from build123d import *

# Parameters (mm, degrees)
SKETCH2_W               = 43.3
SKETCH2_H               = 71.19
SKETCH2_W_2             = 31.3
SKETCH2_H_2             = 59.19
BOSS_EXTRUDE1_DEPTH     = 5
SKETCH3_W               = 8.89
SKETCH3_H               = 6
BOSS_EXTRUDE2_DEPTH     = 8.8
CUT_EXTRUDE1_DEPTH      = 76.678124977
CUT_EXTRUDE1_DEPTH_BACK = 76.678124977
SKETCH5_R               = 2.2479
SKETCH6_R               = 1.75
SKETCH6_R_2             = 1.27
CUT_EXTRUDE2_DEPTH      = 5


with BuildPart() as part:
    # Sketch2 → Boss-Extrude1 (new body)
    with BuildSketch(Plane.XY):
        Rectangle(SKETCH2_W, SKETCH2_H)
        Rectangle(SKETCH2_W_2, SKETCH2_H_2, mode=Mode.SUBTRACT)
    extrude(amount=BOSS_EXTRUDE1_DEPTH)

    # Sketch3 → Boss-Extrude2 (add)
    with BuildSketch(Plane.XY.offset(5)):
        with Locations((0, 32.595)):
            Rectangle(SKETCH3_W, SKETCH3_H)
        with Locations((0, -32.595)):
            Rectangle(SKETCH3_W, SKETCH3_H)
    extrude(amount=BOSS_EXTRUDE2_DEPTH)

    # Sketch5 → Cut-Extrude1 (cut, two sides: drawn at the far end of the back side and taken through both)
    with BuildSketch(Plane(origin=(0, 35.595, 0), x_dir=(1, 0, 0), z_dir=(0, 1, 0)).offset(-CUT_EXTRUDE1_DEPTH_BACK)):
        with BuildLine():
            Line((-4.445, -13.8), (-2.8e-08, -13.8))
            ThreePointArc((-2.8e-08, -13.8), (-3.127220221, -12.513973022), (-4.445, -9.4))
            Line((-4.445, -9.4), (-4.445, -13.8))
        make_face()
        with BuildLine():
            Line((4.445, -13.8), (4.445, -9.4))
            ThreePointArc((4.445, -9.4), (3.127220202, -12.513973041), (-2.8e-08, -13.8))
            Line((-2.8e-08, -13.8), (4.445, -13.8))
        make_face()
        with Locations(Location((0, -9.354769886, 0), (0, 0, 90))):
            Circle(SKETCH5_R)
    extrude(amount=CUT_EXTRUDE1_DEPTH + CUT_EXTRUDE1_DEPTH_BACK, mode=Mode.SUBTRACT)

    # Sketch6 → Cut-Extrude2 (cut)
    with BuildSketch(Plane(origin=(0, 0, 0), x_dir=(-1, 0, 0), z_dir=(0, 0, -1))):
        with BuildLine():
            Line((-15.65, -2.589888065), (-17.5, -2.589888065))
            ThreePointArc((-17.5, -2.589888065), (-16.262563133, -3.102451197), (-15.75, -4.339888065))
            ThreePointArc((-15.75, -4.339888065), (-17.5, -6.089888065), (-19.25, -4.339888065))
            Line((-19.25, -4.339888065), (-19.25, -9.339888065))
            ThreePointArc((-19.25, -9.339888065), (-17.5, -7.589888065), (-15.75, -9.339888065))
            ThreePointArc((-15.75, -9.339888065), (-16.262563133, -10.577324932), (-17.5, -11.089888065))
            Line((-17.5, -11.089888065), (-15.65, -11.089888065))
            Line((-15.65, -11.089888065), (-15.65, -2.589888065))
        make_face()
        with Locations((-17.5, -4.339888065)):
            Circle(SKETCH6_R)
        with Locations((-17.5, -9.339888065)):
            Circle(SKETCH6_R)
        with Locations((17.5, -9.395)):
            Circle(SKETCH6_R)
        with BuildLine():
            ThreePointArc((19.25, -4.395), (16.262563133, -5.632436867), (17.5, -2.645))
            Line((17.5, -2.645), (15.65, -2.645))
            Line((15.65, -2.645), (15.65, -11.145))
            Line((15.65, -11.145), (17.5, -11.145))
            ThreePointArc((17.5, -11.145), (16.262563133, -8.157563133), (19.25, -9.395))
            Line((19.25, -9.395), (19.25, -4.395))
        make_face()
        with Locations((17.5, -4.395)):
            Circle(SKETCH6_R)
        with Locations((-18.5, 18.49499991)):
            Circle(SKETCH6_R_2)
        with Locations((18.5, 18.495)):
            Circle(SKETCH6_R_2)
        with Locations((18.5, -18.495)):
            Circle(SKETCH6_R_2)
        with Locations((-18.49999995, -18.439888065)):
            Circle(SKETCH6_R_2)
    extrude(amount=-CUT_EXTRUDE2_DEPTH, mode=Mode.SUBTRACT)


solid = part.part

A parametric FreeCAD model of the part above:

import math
import FreeCAD as App
import Part
import Sketcher
Q = App.Units.Quantity

doc = App.newDocument("Part")
body = doc.addObject("PartDesign::Body", "Body")

sketch1 = body.newObject("Sketcher::SketchObject", "Sketch")
sketch1.AttachmentSupport = (doc.getObject("XY_Plane"), [""])
sketch1.MapMode = "FlatFace"
sketch1.addGeometry(Part.LineSegment(App.Vector(-22, 36, 0), App.Vector(-22, -36, 0)), False)
sketch1.addGeometry(Part.LineSegment(App.Vector(-22, -36, 0), App.Vector(22, -36, 0)), False)
sketch1.addGeometry(Part.LineSegment(App.Vector(22, -36, 0), App.Vector(22, 36, 0)), False)
sketch1.addGeometry(Part.LineSegment(App.Vector(22, 36, 0), App.Vector(-22, 36, 0)), False)
sketch1.addGeometry(Part.LineSegment(App.Vector(16, -30, 0), App.Vector(-16, -30, 0)), False)
sketch1.addGeometry(Part.LineSegment(App.Vector(-16, -30, 0), App.Vector(-16, 30, 0)), False)
sketch1.addGeometry(Part.LineSegment(App.Vector(-16, 30, 0), App.Vector(16, 30, 0)), False)
sketch1.addGeometry(Part.LineSegment(App.Vector(16, 30, 0), App.Vector(16, -30, 0)), False)
sketch1.addConstraint(Sketcher.Constraint("Coincident", 0, 2, 1, 1))
sketch1.addConstraint(Sketcher.Constraint("Coincident", 1, 2, 2, 1))
sketch1.addConstraint(Sketcher.Constraint("Coincident", 2, 2, 3, 1))
sketch1.addConstraint(Sketcher.Constraint("Coincident", 3, 2, 0, 1))
sketch1.addConstraint(Sketcher.Constraint("Coincident", 4, 2, 5, 1))
sketch1.addConstraint(Sketcher.Constraint("Coincident", 5, 2, 6, 1))
sketch1.addConstraint(Sketcher.Constraint("Coincident", 6, 2, 7, 1))
sketch1.addConstraint(Sketcher.Constraint("Coincident", 7, 2, 4, 1))
sketch1.addConstraint(Sketcher.Constraint("Vertical", 0))
sketch1.addConstraint(Sketcher.Constraint("Horizontal", 1))
sketch1.addConstraint(Sketcher.Constraint("Vertical", 2))
sketch1.addConstraint(Sketcher.Constraint("Horizontal", 3))
sketch1.addConstraint(Sketcher.Constraint("Horizontal", 4))
sketch1.addConstraint(Sketcher.Constraint("Vertical", 5))
sketch1.addConstraint(Sketcher.Constraint("Horizontal", 6))
sketch1.addConstraint(Sketcher.Constraint("Vertical", 7))
sketch1.addConstraint(Sketcher.Constraint("Symmetric", 0, 2, 2, 2, -1, 1))
sketch1.addConstraint(Sketcher.Constraint("Symmetric", 4, 2, 6, 2, -1, 1))
sketch1.addConstraint(Sketcher.Constraint("DistanceX", 1, 1, 1, 2, Q("43.3 mm")))
sketch1.addConstraint(Sketcher.Constraint("DistanceX", 4, 2, 4, 1, Q("31.3 mm")))
sketch1.addConstraint(Sketcher.Constraint("DistanceY", 0, 2, 4, 2, Q("6 mm")))
sketch1.addConstraint(Sketcher.Constraint("DistanceY", 0, 2, 0, 1, Q("71.19 mm")))
pad1 = body.newObject("PartDesign::Pad", "Pad")
pad1.Profile = sketch1
pad1.Length = 5

sketch2 = body.newObject("Sketcher::SketchObject", "Sketch001")
sketch2.AttachmentSupport = (doc.getObject("XY_Plane"), [""])
sketch2.MapMode = "FlatFace"
sketch2.AttachmentOffset = App.Placement(App.Vector(0, 0, 5), App.Rotation())
sketch2.addGeometry(Part.LineSegment(App.Vector(-4, 36, 0), App.Vector(-4, 30, 0)), False)
sketch2.addGeometry(Part.LineSegment(App.Vector(-4, 30, 0), App.Vector(4, 30, 0)), False)
sketch2.addGeometry(Part.LineSegment(App.Vector(4, 30, 0), App.Vector(4, 36, 0)), False)
sketch2.addGeometry(Part.LineSegment(App.Vector(4, 36, 0), App.Vector(-4, 36, 0)), False)
sketch2.addGeometry(Part.LineSegment(App.Vector(-4, -30, 0), App.Vector(-4, -36, 0)), False)
sketch2.addGeometry(Part.LineSegment(App.Vector(-4, -36, 0), App.Vector(4, -36, 0)), False)
sketch2.addGeometry(Part.LineSegment(App.Vector(4, -36, 0), App.Vector(4, -30, 0)), False)
sketch2.addGeometry(Part.LineSegment(App.Vector(4, -30, 0), App.Vector(-4, -30, 0)), False)
sketch2.addConstraint(Sketcher.Constraint("Coincident", 0, 2, 1, 1))
sketch2.addConstraint(Sketcher.Constraint("Coincident", 1, 2, 2, 1))
sketch2.addConstraint(Sketcher.Constraint("Coincident", 2, 2, 3, 1))
sketch2.addConstraint(Sketcher.Constraint("Coincident", 3, 2, 0, 1))
sketch2.addConstraint(Sketcher.Constraint("Coincident", 4, 2, 5, 1))
sketch2.addConstraint(Sketcher.Constraint("Coincident", 5, 2, 6, 1))
sketch2.addConstraint(Sketcher.Constraint("Coincident", 6, 2, 7, 1))
sketch2.addConstraint(Sketcher.Constraint("Coincident", 7, 2, 4, 1))
sketch2.addConstraint(Sketcher.Constraint("Vertical", 0))
sketch2.addConstraint(Sketcher.Constraint("Horizontal", 1))
sketch2.addConstraint(Sketcher.Constraint("Vertical", 2))
sketch2.addConstraint(Sketcher.Constraint("Horizontal", 3))
sketch2.addConstraint(Sketcher.Constraint("Vertical", 4))
sketch2.addConstraint(Sketcher.Constraint("Horizontal", 5))
sketch2.addConstraint(Sketcher.Constraint("Vertical", 6))
sketch2.addConstraint(Sketcher.Constraint("Horizontal", 7))
sketch2.addConstraint(Sketcher.Constraint("Symmetric", 2, 2, 4, 2, -1, 1))
sketch2.addConstraint(Sketcher.Constraint("Symmetric", 0, 2, 6, 2, -1, 1))
sketch2.addConstraint(Sketcher.Constraint("Vertical", 3, 2, 4, 2))
sketch2.addConstraint(Sketcher.Constraint("DistanceY", 0, 2, 0, 1, Q("6 mm")))
sketch2.addConstraint(Sketcher.Constraint("DistanceX", 1, 1, 1, 2, Q("8.89 mm")))
sketch2.addConstraint(Sketcher.Constraint("DistanceY", 4, 2, 0, 2, Q("65.19 mm")))
pad2 = body.newObject("PartDesign::Pad", "Pad001")
pad2.Profile = sketch2
pad2.Length = 8.8

sketch3 = body.newObject("Sketcher::SketchObject", "Sketch002")
sketch3.AttachmentSupport = (doc.getObject("XZ_Plane"), [""])
sketch3.MapMode = "FlatFace"
sketch3.AttachmentOffset = App.Placement(App.Vector(0, 0, -35.595), App.Rotation())
sketch3.addGeometry(Part.LineSegment(App.Vector(-4.4, 13.8, 0), App.Vector(0, 13.8, 0)), False)
sketch3.addGeometry(Part.ArcOfCircle(Part.Circle(App.Vector(0, 9.4, 0), App.Vector(0, 0, 1), 4.4), math.radians(90), math.radians(179)), False)
sketch3.addGeometry(Part.LineSegment(App.Vector(-4.4, 9.4, 0), App.Vector(-4.4, 13.8, 0)), False)
sketch3.addGeometry(Part.LineSegment(App.Vector(4.4, 13.8, 0), App.Vector(4.4, 9.4, 0)), False)
sketch3.addGeometry(Part.ArcOfCircle(Part.Circle(App.Vector(0, 9.4, 0), App.Vector(0, 0, 1), 4.4), math.radians(1), math.radians(90)), False)
sketch3.addGeometry(Part.LineSegment(App.Vector(0, 13.8, 0), App.Vector(4.4, 13.8, 0)), False)
sketch3.addGeometry(Part.Circle(App.Vector(0, 9.4, 0), App.Vector(0, 0, 1), 2.2), False)
sketch3.addConstraint(Sketcher.Constraint("Tangent", 0, 2, 1, 1))
sketch3.addConstraint(Sketcher.Constraint("Coincident", 1, 2, 2, 1))
sketch3.addConstraint(Sketcher.Constraint("Coincident", 2, 2, 0, 1))
sketch3.addConstraint(Sketcher.Constraint("Coincident", 3, 2, 4, 1))
sketch3.addConstraint(Sketcher.Constraint("Tangent", 4, 2, 5, 1))
sketch3.addConstraint(Sketcher.Constraint("Coincident", 5, 2, 3, 1))
sketch3.addConstraint(Sketcher.Constraint("Horizontal", 0))
sketch3.addConstraint(Sketcher.Constraint("Vertical", 2))
sketch3.addConstraint(Sketcher.Constraint("Vertical", 3))
sketch3.addConstraint(Sketcher.Constraint("Horizontal", 5))
sketch3.addConstraint(Sketcher.Constraint("Coincident", 4, 3, 1, 3))
sketch3.addConstraint(Sketcher.Constraint("Coincident", 6, 3, 1, 3))
sketch3.addConstraint(Sketcher.Constraint("Equal", 1, 4))
sketch3.addConstraint(Sketcher.Constraint("Symmetric", 1, 2, 3, 2, -2))
sketch3.addConstraint(Sketcher.Constraint("DistanceY", 2, 1, 2, 2, Q("4.4 mm")))
sketch3.addConstraint(Sketcher.Constraint("Diameter", 6, Q("4.4958 mm")))
sketch3.addConstraint(Sketcher.Constraint("DistanceY", -1, 1, 0, 2, Q("13.8 mm")))
sketch3.addConstraint(Sketcher.Constraint("DistanceX", 0, 1, 0, 2, Q("4.445 mm")))
pocket1 = body.newObject("PartDesign::Pocket", "Pocket")
pocket1.Profile = sketch3
pocket1.Type = "ThroughAll"
pocket1.Midplane = True

sketch4 = body.newObject("Sketcher::SketchObject", "Sketch003")
sketch4.AttachmentSupport = (doc.getObject("XY_Plane"), [""])
sketch4.MapMode = "FlatFace"
sketch4.addGeometry(Part.LineSegment(App.Vector(15.7, -2.6, 0), App.Vector(17.5, -2.6, 0)), False)
sketch4.addGeometry(Part.ArcOfCircle(Part.Circle(App.Vector(17.5, -4.3, 0), App.Vector(0, 0, 1), 1.8), math.radians(0), math.radians(90)), False)
sketch4.addGeometry(Part.LineSegment(App.Vector(19.2, -4.3, 0), App.Vector(19.2, -9.3, 0)), False)
sketch4.addGeometry(Part.ArcOfCircle(Part.Circle(App.Vector(17.5, -9.3, 0), App.Vector(0, 0, 1), 1.8), math.radians(-90), math.radians(0)), False)
sketch4.addGeometry(Part.LineSegment(App.Vector(17.5, -11.1, 0), App.Vector(15.7, -11.1, 0)), False)
sketch4.addGeometry(Part.LineSegment(App.Vector(15.7, -11.1, 0), App.Vector(15.7, -2.6, 0)), False)
sketch4.addGeometry(Part.ArcOfCircle(Part.Circle(App.Vector(-17.5, -9.4, 0), App.Vector(0, 0, 1), 1.8), math.radians(180), math.radians(270)), False)
sketch4.addGeometry(Part.LineSegment(App.Vector(-19.2, -9.4, 0), App.Vector(-19.2, -4.4, 0)), False)
sketch4.addGeometry(Part.ArcOfCircle(Part.Circle(App.Vector(-17.5, -4.4, 0), App.Vector(0, 0, 1), 1.8), math.radians(90), math.radians(180)), False)
sketch4.addGeometry(Part.LineSegment(App.Vector(-17.5, -2.6, 0), App.Vector(-15.7, -2.6, 0)), False)
sketch4.addGeometry(Part.LineSegment(App.Vector(-15.7, -2.6, 0), App.Vector(-15.7, -11.1, 0)), False)
sketch4.addGeometry(Part.LineSegment(App.Vector(-15.7, -11.1, 0), App.Vector(-17.5, -11.1, 0)), False)
sketch4.addGeometry(Part.Circle(App.Vector(18.5, 18.5, 0), App.Vector(0, 0, 1), 1.3), False)
sketch4.addGeometry(Part.Circle(App.Vector(-18.5, 18.5, 0), App.Vector(0, 0, 1), 1.3), False)
sketch4.addGeometry(Part.Circle(App.Vector(-18.5, -18.5, 0), App.Vector(0, 0, 1), 1.3), False)
sketch4.addGeometry(Part.Circle(App.Vector(18.5, -18.4, 0), App.Vector(0, 0, 1), 1.3), False)
sketch4.addConstraint(Sketcher.Constraint("Tangent", 0, 2, 1, 2))
sketch4.addConstraint(Sketcher.Constraint("Tangent", 1, 1, 2, 1))
sketch4.addConstraint(Sketcher.Constraint("Tangent", 2, 2, 3, 2))
sketch4.addConstraint(Sketcher.Constraint("Tangent", 3, 1, 4, 1))
sketch4.addConstraint(Sketcher.Constraint("Coincident", 4, 2, 5, 1))
sketch4.addConstraint(Sketcher.Constraint("Coincident", 5, 2, 0, 1))
sketch4.addConstraint(Sketcher.Constraint("Tangent", 6, 1, 7, 1))
sketch4.addConstraint(Sketcher.Constraint("Tangent", 7, 2, 8, 2))
sketch4.addConstraint(Sketcher.Constraint("Tangent", 8, 1, 9, 1))
sketch4.addConstraint(Sketcher.Constraint("Coincident", 9, 2, 10, 1))
sketch4.addConstraint(Sketcher.Constraint("Coincident", 10, 2, 11, 1))
sketch4.addConstraint(Sketcher.Constraint("Tangent", 11, 2, 6, 2))
sketch4.addConstraint(Sketcher.Constraint("Horizontal", 0))
sketch4.addConstraint(Sketcher.Constraint("Vertical", 2))
sketch4.addConstraint(Sketcher.Constraint("Horizontal", 4))
sketch4.addConstraint(Sketcher.Constraint("Vertical", 5))
sketch4.addConstraint(Sketcher.Constraint("Vertical", 7))
sketch4.addConstraint(Sketcher.Constraint("Horizontal", 9))
sketch4.addConstraint(Sketcher.Constraint("Vertical", 10))
sketch4.addConstraint(Sketcher.Constraint("Horizontal", 11))
sketch4.addConstraint(Sketcher.Constraint("Equal", 1, 3))
sketch4.addConstraint(Sketcher.Constraint("Equal", 3, 6))
sketch4.addConstraint(Sketcher.Constraint("Equal", 6, 8))
sketch4.addConstraint(Sketcher.Constraint("Equal", 12, 13))
sketch4.addConstraint(Sketcher.Constraint("Equal", 13, 14))
sketch4.addConstraint(Sketcher.Constraint("Equal", 14, 15))
sketch4.addConstraint(Sketcher.Constraint("Symmetric", 12, 3, 14, 3, -1, 1))
sketch4.addConstraint(Sketcher.Constraint("Symmetric", 12, 3, 13, 3, -2))
sketch4.addConstraint(Sketcher.Constraint("Vertical", 12, 3, 15, 3))
sketch4.addConstraint(Sketcher.Constraint("Equal", 4, 9))
sketch4.addConstraint(Sketcher.Constraint("Equal", 2, 7))
sketch4.addConstraint(Sketcher.Constraint("Diameter", 12, Q("2.54 mm")))
sketch4.addConstraint(Sketcher.Constraint("DistanceY", 2, 2, 2, 1, Q("5 mm")))
sketch4.addConstraint(Sketcher.Constraint("Radius", 1, Q("1.75 mm")))
sketch4.addConstraint(Sketcher.Constraint("DistanceX", 6, 3, 3, 3, Q("35 mm")))
sketch4.addConstraint(Sketcher.Constraint("DistanceX", 1, 3, 12, 3, Q("1 mm")))
sketch4.addConstraint(Sketcher.Constraint("DistanceX", 13, 3, 8, 3, Q("1 mm")))
sketch4.addConstraint(Sketcher.Constraint("DistanceX", 0, 1, 0, 2, Q("1.85 mm")))
sketch4.addConstraint(Sketcher.Constraint("DistanceY", 14, 3, 6, 3, Q("9.1 mm")))
sketch4.addConstraint(Sketcher.Constraint("DistanceY", 15, 3, 3, 3, Q("9.1 mm")))
sketch4.addConstraint(Sketcher.Constraint("DistanceY", 8, 3, 12, 3, Q("22.89 mm")))
sketch4.addConstraint(Sketcher.Constraint("DistanceY", 1, 3, -1, 1, Q("4.339888 mm")))
pocket2 = body.newObject("PartDesign::Pocket", "Pocket001")
pocket2.Profile = sketch4
pocket2.Length = 5
pocket2.Reversed = True

doc.recompute()
